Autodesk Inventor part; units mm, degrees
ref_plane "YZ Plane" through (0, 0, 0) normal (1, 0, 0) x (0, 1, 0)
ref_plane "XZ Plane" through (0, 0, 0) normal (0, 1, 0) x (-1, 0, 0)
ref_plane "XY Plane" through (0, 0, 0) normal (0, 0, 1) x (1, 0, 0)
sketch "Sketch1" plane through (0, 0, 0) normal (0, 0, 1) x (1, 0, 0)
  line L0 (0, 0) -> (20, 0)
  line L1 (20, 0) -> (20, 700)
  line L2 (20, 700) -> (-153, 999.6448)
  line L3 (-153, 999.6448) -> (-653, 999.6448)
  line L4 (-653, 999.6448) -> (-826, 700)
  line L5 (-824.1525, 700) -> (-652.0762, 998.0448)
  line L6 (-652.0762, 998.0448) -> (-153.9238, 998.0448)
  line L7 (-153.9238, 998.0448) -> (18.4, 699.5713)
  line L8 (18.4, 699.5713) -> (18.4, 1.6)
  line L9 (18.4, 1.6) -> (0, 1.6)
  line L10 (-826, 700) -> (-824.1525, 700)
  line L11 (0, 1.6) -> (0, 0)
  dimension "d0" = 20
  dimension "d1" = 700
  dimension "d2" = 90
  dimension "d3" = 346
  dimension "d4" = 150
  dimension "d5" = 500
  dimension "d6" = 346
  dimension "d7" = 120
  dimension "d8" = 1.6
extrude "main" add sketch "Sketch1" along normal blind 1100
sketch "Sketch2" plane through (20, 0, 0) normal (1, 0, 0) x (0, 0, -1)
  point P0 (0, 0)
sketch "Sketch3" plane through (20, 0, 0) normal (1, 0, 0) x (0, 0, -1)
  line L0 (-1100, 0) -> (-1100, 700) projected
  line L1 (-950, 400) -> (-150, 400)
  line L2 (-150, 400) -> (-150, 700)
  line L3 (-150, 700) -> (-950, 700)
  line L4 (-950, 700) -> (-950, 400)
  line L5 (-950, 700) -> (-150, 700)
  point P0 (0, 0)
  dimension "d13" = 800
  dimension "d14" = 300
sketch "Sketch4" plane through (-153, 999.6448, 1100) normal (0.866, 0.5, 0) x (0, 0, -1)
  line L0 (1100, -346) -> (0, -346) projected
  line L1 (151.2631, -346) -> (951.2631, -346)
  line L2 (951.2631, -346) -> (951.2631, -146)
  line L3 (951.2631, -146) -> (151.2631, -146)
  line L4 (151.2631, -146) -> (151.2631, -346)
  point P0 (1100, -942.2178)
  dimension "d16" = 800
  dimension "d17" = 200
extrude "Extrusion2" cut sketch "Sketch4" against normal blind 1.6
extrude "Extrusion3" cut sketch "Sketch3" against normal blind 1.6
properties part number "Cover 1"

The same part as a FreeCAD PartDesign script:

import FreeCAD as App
import Part
import Sketcher
from FreeCAD import Vector
Q = App.Units.Quantity


def add_polygon(sketch, points):
    """Adds a closed chain of lines whose ends are joined by coincident constraints."""
    first, n = sketch.GeometryCount, len(points)
    for a, b in zip(points, points[1:] + points[:1]):
        sketch.addGeometry(Part.LineSegment(App.Vector(*a, 0), App.Vector(*b, 0)), False)
    for i in range(n):
        sketch.addConstraint(Sketcher.Constraint("Coincident", first + i, 2, first + (i + 1) % n, 1))

doc = App.newDocument("Part")
body = doc.addObject("PartDesign::Body", "Body")

sketch1 = body.newObject("Sketcher::SketchObject", "Sketch")
sketch1.AttachmentSupport = (doc.getObject("XY_Plane"), [""])
sketch1.MapMode = "FlatFace"
add_polygon(sketch1, [(0, 1.6), (0, 0), (20, 0), (20, 700), (-153, 999.6), (-653, 999.6), (-826, 700), (-824.2, 700), (-652.1, 998), (-153.9, 998), (18.4, 699.6), (18.4, 1.6)])
sketch1.addConstraint([
    Sketcher.Constraint("Vertical", 0),
    Sketcher.Constraint("Horizontal", 1),
    Sketcher.Constraint("Vertical", 2),
    Sketcher.Constraint("Horizontal", 4),
    Sketcher.Constraint("Horizontal", 6),
    Sketcher.Constraint("Horizontal", 8),
    Sketcher.Constraint("Vertical", 10),
    Sketcher.Constraint("Horizontal", 11),
    Sketcher.Constraint("Coincident", 0, 2, -1, 1),
    Sketcher.Constraint("Parallel", 5, 7),
    Sketcher.Constraint("Parallel", 3, 9),
    Sketcher.Constraint("Horizontal", 2, 2, 5, 2),
    Sketcher.Constraint("Equal", 3, 5),
    Sketcher.Constraint("DistanceX", 1, 1, 1, 2, Q("20 mm")),
    Sketcher.Constraint("DistanceX", 4, 2, 4, 1, Q("500 mm")),
    Sketcher.Constraint("DistanceY", 2, 1, 2, 2, Q("700 mm")),
    Sketcher.Constraint("Angle", 3, Q("120 deg")),
    Sketcher.Constraint("Distance", 3, Q("346 mm")),
    Sketcher.Constraint("DistanceY", 0, 2, 0, 1, Q("1.6 mm")),
    Sketcher.Constraint("DistanceY", 7, 2, 4, 2, Q("1.6 mm")),
    Sketcher.Constraint("DistanceX", 9, 2, 2, 2, Q("1.6 mm")),
    Sketcher.Constraint("DistanceX", 6, 1, 6, 2, Q("1.8475 mm")),
    Sketcher.Constraint("DistanceX", 8, 1, 8, 2, Q("498.1524 mm")),
])
pad1 = body.newObject("PartDesign::Pad", "Pad")
pad1.Profile = sketch1
pad1.Length = 1100

sketch2 = body.newObject("Sketcher::SketchObject", "Sketch001")
sketch2.Placement = App.Placement(Vector(-153, 999.6448, 1100), App.Rotation(Vector(0, 0, -1), Vector(-0.5, 0.866025404, 0), Vector(0.866025404, 0.5, 0), "ZXY"))
add_polygon(sketch2, [(151, -346), (951, -346), (951, -146), (151, -146)])
sketch2.addConstraint([
    Sketcher.Constraint("Horizontal", 0),
    Sketcher.Constraint("Vertical", 1),
    Sketcher.Constraint("Horizontal", 2),
    Sketcher.Constraint("Vertical", 3),
    Sketcher.Constraint("DistanceX", 0, 1, 0, 2, Q("800 mm")),
    Sketcher.Constraint("DistanceY", 1, 1, 1, 2, Q("200 mm")),
    Sketcher.Constraint("DistanceY", 0, 2, -1, 1, Q("346 mm")),
    Sketcher.Constraint("DistanceX", -1, 1, 0, 2, Q("951.263 mm")),
])
pocket1 = body.newObject("PartDesign::Pocket", "Pocket")
pocket1.Profile = sketch2
pocket1.Length = 1.6

sketch3 = body.newObject("Sketcher::SketchObject", "Sketch002")
sketch3.AttachmentSupport = (doc.getObject("YZ_Plane"), [""])
sketch3.MapMode = "FlatFace"
sketch3.AttachmentOffset = App.Placement(Vector(0, 0, 20), App.Rotation())
add_polygon(sketch3, [(700, 950), (400, 950), (400, 150), (700, 150)])
sketch3.addConstraint([
    Sketcher.Constraint("Horizontal", 0),
    Sketcher.Constraint("Vertical", 1),
    Sketcher.Constraint("Horizontal", 2),
    Sketcher.Constraint("Vertical", 3),
    Sketcher.Constraint("DistanceX", 0, 2, 0, 1, Q("300 mm")),
    Sketcher.Constraint("DistanceY", 1, 2, 1, 1, Q("800 mm")),
    Sketcher.Constraint("DistanceX", -1, 1, 0, 2, Q("400 mm")),
    Sketcher.Constraint("DistanceY", -1, 1, 0, 2, Q("950 mm")),
])
pocket2 = body.newObject("PartDesign::Pocket", "Pocket001")
pocket2.Profile = sketch3
pocket2.Length = 1.6

doc.recompute()
